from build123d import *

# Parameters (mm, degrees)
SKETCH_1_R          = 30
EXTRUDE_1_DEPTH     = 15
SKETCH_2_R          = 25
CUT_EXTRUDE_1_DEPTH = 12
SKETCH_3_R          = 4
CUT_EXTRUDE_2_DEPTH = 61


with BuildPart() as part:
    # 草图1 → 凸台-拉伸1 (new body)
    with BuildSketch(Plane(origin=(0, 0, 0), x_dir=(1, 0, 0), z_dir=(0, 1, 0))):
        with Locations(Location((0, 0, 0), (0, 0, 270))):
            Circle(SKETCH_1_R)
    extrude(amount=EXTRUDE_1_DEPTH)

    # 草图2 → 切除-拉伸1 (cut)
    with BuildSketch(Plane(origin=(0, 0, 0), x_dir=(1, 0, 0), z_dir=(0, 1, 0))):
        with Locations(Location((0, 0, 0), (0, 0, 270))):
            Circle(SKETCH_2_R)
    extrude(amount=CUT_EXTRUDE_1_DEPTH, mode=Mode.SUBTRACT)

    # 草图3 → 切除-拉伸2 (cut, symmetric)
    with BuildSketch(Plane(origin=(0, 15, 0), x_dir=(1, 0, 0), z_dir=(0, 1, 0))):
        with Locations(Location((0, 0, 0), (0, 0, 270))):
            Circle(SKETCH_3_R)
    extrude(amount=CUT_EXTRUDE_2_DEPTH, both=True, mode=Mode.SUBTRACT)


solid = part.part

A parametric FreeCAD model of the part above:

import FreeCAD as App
import Part
import Sketcher
Q = App.Units.Quantity

doc = App.newDocument("Part")
params = doc.addObject("Spreadsheet::Sheet", "Params")
for row, (alias, value) in enumerate([
    ("sketch1_diameter", "60 mm"),
    ("pad1_length", "15 mm"),
    ("sketch2_diameter", "50 mm"),
    ("pocket1_length", "12 mm"),
    ("sketch3_diameter", "8 mm"),
    ("pocket2_length", "122 mm"),
], start=1):
    params.set(f"A{row}", alias)
    params.set(f"B{row}", "=" + value)
    params.setAlias(f"B{row}", alias)

body = doc.addObject("PartDesign::Body", "Body")

# Sketch on XZ plane
sketch1 = body.newObject("Sketcher::SketchObject", "Sketch")
sketch1.AttachmentSupport = (doc.getObject("XZ_Plane"), [""])
sketch1.MapMode = "FlatFace"
sketch1.addGeometry(Part.Circle(App.Vector(0, 0, 0), App.Vector(0, 0, 1), 30), False)
sketch1.addConstraint([
    Sketcher.Constraint("Coincident", 0, 3, -1, 1),
    Sketcher.Constraint("Diameter", 0, Q("60 mm")),
])
sketch1.setExpression("Constraints[1]", "Params.sketch1_diameter")
pad1 = body.newObject("PartDesign::Pad", "Pad")
pad1.Profile = sketch1
pad1.setExpression("Length", "Params.pad1_length")
pad1.Reversed = True

# Sketch on XZ plane
sketch2 = body.newObject("Sketcher::SketchObject", "Sketch001")
sketch2.AttachmentSupport = (doc.getObject("XZ_Plane"), [""])
sketch2.MapMode = "FlatFace"
sketch2.addGeometry(Part.Circle(App.Vector(0, 0, 0), App.Vector(0, 0, 1), 25), False)
sketch2.addConstraint([
    Sketcher.Constraint("Coincident", 0, 3, -1, 1),
    Sketcher.Constraint("Diameter", 0, Q("50 mm")),
])
sketch2.setExpression("Constraints[1]", "Params.sketch2_diameter")
pocket1 = body.newObject("PartDesign::Pocket", "Pocket")
pocket1.Profile = sketch2
pocket1.setExpression("Length", "Params.pocket1_length")

# Sketch on XZ plane
sketch3 = body.newObject("Sketcher::SketchObject", "Sketch002")
sketch3.AttachmentSupport = (doc.getObject("XZ_Plane"), [""])
sketch3.MapMode = "FlatFace"
sketch3.AttachmentOffset = App.Placement(App.Vector(0, 0, -15), App.Rotation())
sketch3.addGeometry(Part.Circle(App.Vector(0, 0, 0), App.Vector(0, 0, 1), 4), False)
sketch3.addConstraint([
    Sketcher.Constraint("Coincident", 0, 3, -1, 1),
    Sketcher.Constraint("Diameter", 0, Q("8 mm")),
])
sketch3.setExpression("Constraints[1]", "Params.sketch3_diameter")
pocket2 = body.newObject("PartDesign::Pocket", "Pocket001")
pocket2.Profile = sketch3
pocket2.setExpression("Length", "Params.pocket2_length")
pocket2.Midplane = True

doc.recompute()
